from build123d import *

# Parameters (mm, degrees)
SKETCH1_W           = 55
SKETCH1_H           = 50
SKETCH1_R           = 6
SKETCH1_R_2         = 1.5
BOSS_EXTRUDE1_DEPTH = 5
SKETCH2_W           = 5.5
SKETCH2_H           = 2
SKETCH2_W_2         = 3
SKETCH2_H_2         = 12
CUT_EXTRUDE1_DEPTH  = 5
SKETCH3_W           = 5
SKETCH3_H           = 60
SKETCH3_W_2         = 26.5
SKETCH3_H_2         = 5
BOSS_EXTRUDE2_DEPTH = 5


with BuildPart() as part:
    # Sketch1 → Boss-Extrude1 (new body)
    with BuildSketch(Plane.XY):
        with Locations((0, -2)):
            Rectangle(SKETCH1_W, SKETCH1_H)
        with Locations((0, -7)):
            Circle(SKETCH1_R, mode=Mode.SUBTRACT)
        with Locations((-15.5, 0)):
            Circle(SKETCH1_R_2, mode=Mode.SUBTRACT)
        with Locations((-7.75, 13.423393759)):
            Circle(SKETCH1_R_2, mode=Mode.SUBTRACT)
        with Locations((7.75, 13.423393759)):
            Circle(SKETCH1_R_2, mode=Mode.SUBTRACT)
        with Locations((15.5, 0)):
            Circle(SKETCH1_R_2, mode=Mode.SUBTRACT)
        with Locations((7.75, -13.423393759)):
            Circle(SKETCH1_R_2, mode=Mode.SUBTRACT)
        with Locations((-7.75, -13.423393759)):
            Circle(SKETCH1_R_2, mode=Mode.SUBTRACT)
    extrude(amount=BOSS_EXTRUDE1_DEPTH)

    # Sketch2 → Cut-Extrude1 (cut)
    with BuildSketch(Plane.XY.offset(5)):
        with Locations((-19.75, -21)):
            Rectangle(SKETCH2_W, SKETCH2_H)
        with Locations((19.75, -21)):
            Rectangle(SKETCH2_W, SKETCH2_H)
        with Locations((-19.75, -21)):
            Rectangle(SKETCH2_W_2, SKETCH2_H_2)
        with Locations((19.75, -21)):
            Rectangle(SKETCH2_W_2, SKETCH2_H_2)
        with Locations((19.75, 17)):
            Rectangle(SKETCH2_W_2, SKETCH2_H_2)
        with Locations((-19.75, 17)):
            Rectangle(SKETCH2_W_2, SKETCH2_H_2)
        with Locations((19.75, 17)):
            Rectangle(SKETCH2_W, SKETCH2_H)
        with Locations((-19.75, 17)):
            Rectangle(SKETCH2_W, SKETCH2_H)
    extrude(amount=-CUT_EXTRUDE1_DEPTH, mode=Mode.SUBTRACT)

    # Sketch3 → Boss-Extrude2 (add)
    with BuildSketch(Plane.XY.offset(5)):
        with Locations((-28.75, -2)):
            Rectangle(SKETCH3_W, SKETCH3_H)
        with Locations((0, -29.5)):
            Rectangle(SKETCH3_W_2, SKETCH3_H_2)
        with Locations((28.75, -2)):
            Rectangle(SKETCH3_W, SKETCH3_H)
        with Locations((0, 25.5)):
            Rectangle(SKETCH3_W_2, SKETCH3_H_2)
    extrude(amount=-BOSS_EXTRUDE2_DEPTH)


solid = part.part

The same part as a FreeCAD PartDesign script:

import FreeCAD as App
import Part
import Sketcher

V = App.Vector


def add_polygon(sketch, points):
    """Adds a closed chain of lines whose ends are joined by coincident constraints."""
    first, n = sketch.GeometryCount, len(points)
    for a, b in zip(points, points[1:] + points[:1]):
        sketch.addGeometry(Part.LineSegment(App.Vector(*a, 0), App.Vector(*b, 0)), False)
    for i in range(n):
        sketch.addConstraint(Sketcher.Constraint("Coincident", first + i, 2, first + (i + 1) % n, 1))

doc = App.newDocument("Part")
params = doc.addObject("Spreadsheet::Sheet", "Params")
for row, (alias, value) in enumerate([
    ("sketch1_diameter", "3 mm"),
    ("sketch1_diameter2", "12 mm"),
    ("sketch1_width", "55 mm"),
    ("sketch1_height", "50 mm"),
    ("pad1_length", "5 mm"),
    ("sketch2_width", "3 mm"),
    ("sketch2_height", "2 mm"),
    ("sketch2_height2", "5 mm"),
    ("sketch2_width2", "1.25 mm"),
    ("pocket1_length", "5 mm"),
    ("sketch3_width", "5 mm"),
    ("sketch3_height", "60 mm"),
    ("sketch3_width2", "26.5 mm"),
    ("pad2_length", "5 mm"),
], start=1):
    params.set(f"A{row}", alias)
    params.set(f"B{row}", "=" + value)
    params.setAlias(f"B{row}", alias)

body = doc.addObject("PartDesign::Body", "Body")

# Sketch on XY plane
sketch1 = doc.addObject("Sketcher::SketchObject", "Sketch")
body.addObject(sketch1)
sketch1.AttachmentSupport = (doc.XY_Plane, [""])
sketch1.MapMode = "FlatFace"
add_polygon(sketch1, [(-27.5, 23), (-27.5, -27), (27.5, -27), (27.5, 23)])  # lines 0-3
sketch1.addGeometry(Part.Circle(V(-7.8, -13.4, 0), V(0, 0, 1), 1.5), False)  # 4
sketch1.addGeometry(Part.Circle(V(7.8, -13.4, 0), V(0, 0, 1), 1.5), False)  # 5
sketch1.addGeometry(Part.Circle(V(0, -7, 0), V(0, 0, 1), 6), False)  # 6
sketch1.addGeometry(Part.Circle(V(-15.5, 0, 0), V(0, 0, 1), 1.5), False)  # 7
sketch1.addGeometry(Part.Circle(V(-7.8, 13.4, 0), V(0, 0, 1), 1.5), False)  # 8
sketch1.addGeometry(Part.Circle(V(15.5, 0, 0), V(0, 0, 1), 1.5), False)  # 9
sketch1.addGeometry(Part.Circle(V(7.8, 13.4, 0), V(0, 0, 1), 1.5), False)  # 10
sketch1.addConstraint(Sketcher.Constraint("Vertical", 0))
sketch1.addConstraint(Sketcher.Constraint("Horizontal", 1))
sketch1.addConstraint(Sketcher.Constraint("Vertical", 2))
sketch1.addConstraint(Sketcher.Constraint("Horizontal", 3))
sketch1.addConstraint(Sketcher.Constraint("Equal", 4, 5))
sketch1.addConstraint(Sketcher.Constraint("Equal", 5, 7))
sketch1.addConstraint(Sketcher.Constraint("Equal", 7, 8))
sketch1.addConstraint(Sketcher.Constraint("Equal", 8, 9))
sketch1.addConstraint(Sketcher.Constraint("Equal", 9, 10))
sketch1.addConstraint(Sketcher.Constraint("Symmetric", 5, 3, 8, 3, -1, 1))
sketch1.addConstraint(Sketcher.Constraint("Symmetric", 7, 3, 9, 3, -1, 1))
sketch1.addConstraint(Sketcher.Constraint("Symmetric", 4, 3, 10, 3, -1, 1))
sketch1.addConstraint(Sketcher.Constraint("Symmetric", 4, 3, 5, 3, -2))
sketch1.addConstraint(Sketcher.Constraint("PointOnObject", 6, 3, -2))
sketch1.addConstraint(Sketcher.Constraint("PointOnObject", 7, 3, -1))
sketch1.addConstraint(Sketcher.Constraint("Diameter", 4, 3.0))
sketch1.addConstraint(Sketcher.Constraint("Diameter", 6, 12.0))
sketch1.addConstraint(Sketcher.Constraint("DistanceX", 1, 1, 1, 2, 55.0))
sketch1.addConstraint(Sketcher.Constraint("DistanceY", 0, 2, 0, 1, 50.0))
sketch1.addConstraint(Sketcher.Constraint("DistanceY", 6, 3, -1, 1, 7.0))
sketch1.addConstraint(Sketcher.Constraint("DistanceY", 0, 2, -1, 1, 27.0))
sketch1.addConstraint(Sketcher.Constraint("DistanceX", 7, 3, 9, 3, 31.0))
sketch1.addConstraint(Sketcher.Constraint("DistanceX", 0, 2, 7, 3, 12.0))
sketch1.addConstraint(Sketcher.Constraint("DistanceX", 4, 3, 5, 3, 15.5))
sketch1.addConstraint(Sketcher.Constraint("DistanceY", 4, 3, -1, 1, 13.423394))
sketch1.setExpression("Constraints[19]", "Params.sketch1_diameter")
sketch1.setExpression("Constraints[20]", "Params.sketch1_diameter2")
sketch1.setExpression("Constraints[21]", "Params.sketch1_width")
sketch1.setExpression("Constraints[22]", "Params.sketch1_height")
pad1 = doc.addObject("PartDesign::Pad", "Pad")
body.addObject(pad1)
pad1.Profile = sketch1
pad1.setExpression("Length", "Params.pad1_length")

# Sketch on XY plane
sketch2 = doc.addObject("Sketcher::SketchObject", "Sketch001")
body.addObject(sketch2)
sketch2.AttachmentSupport = (doc.XY_Plane, [""])
sketch2.MapMode = "FlatFace"
sketch2.AttachmentOffset = App.Placement(V(0, 0, 5), App.Rotation())
add_polygon(sketch2, [(-22.5, -20), (-22.5, -22), (-21.2, -22), (-21.2, -27), (-18.2, -27), (-18.2, -22), (-17, -22), (-17, -20), (-18.2, -20), (-18.2, -15), (-21.2, -15), (-21.2, -20)])  # lines 0-11
add_polygon(sketch2, [(17, -20), (17, -22), (18.2, -22), (18.2, -27), (21.2, -27), (21.2, -22), (22.5, -22), (22.5, -20), (21.2, -20), (21.2, -15), (18.2, -15), (18.2, -20)])  # lines 12-23
add_polygon(sketch2, [(18.2, 16), (18.2, 11), (21.2, 11), (21.2, 16), (22.5, 16), (22.5, 18), (21.2, 18), (21.2, 23), (18.2, 23), (18.2, 18), (17, 18), (17, 16)])  # lines 24-35
add_polygon(sketch2, [(-21.2, 16), (-21.2, 11), (-18.2, 11), (-18.2, 16), (-17, 16), (-17, 18), (-18.2, 18), (-18.2, 23), (-21.2, 23), (-21.2, 18), (-22.5, 18), (-22.5, 16)])  # lines 36-47
sketch2.addConstraint(Sketcher.Constraint("Vertical", 0))
sketch2.addConstraint(Sketcher.Constraint("Horizontal", 1))
sketch2.addConstraint(Sketcher.Constraint("Vertical", 2))
sketch2.addConstraint(Sketcher.Constraint("Horizontal", 3))
sketch2.addConstraint(Sketcher.Constraint("Vertical", 4))
sketch2.addConstraint(Sketcher.Constraint("Horizontal", 5))
sketch2.addConstraint(Sketcher.Constraint("Vertical", 6))
sketch2.addConstraint(Sketcher.Constraint("Horizontal", 7))
sketch2.addConstraint(Sketcher.Constraint("Vertical", 8))
sketch2.addConstraint(Sketcher.Constraint("Horizontal", 9))
sketch2.addConstraint(Sketcher.Constraint("Vertical", 10))
sketch2.addConstraint(Sketcher.Constraint("Horizontal", 11))
sketch2.addConstraint(Sketcher.Constraint("Vertical", 12))
sketch2.addConstraint(Sketcher.Constraint("Horizontal", 13))
sketch2.addConstraint(Sketcher.Constraint("Vertical", 14))
sketch2.addConstraint(Sketcher.Constraint("Horizontal", 15))
sketch2.addConstraint(Sketcher.Constraint("Vertical", 16))
sketch2.addConstraint(Sketcher.Constraint("Horizontal", 17))
sketch2.addConstraint(Sketcher.Constraint("Vertical", 18))
sketch2.addConstraint(Sketcher.Constraint("Horizontal", 19))
sketch2.addConstraint(Sketcher.Constraint("Vertical", 20))
sketch2.addConstraint(Sketcher.Constraint("Horizontal", 21))
sketch2.addConstraint(Sketcher.Constraint("Vertical", 22))
sketch2.addConstraint(Sketcher.Constraint("Horizontal", 23))
sketch2.addConstraint(Sketcher.Constraint("Vertical", 24))
sketch2.addConstraint(Sketcher.Constraint("Horizontal", 25))
sketch2.addConstraint(Sketcher.Constraint("Vertical", 26))
sketch2.addConstraint(Sketcher.Constraint("Horizontal", 27))
sketch2.addConstraint(Sketcher.Constraint("Vertical", 28))
sketch2.addConstraint(Sketcher.Constraint("Horizontal", 29))
sketch2.addConstraint(Sketcher.Constraint("Vertical", 30))
sketch2.addConstraint(Sketcher.Constraint("Horizontal", 31))
sketch2.addConstraint(Sketcher.Constraint("Vertical", 32))
sketch2.addConstraint(Sketcher.Constraint("Horizontal", 33))
sketch2.addConstraint(Sketcher.Constraint("Vertical", 34))
sketch2.addConstraint(Sketcher.Constraint("Horizontal", 35))
sketch2.addConstraint(Sketcher.Constraint("Vertical", 36))
sketch2.addConstraint(Sketcher.Constraint("Horizontal", 37))
sketch2.addConstraint(Sketcher.Constraint("Vertical", 38))
sketch2.addConstraint(Sketcher.Constraint("Horizontal", 39))
sketch2.addConstraint(Sketcher.Constraint("Vertical", 40))
sketch2.addConstraint(Sketcher.Constraint("Horizontal", 41))
sketch2.addConstraint(Sketcher.Constraint("Vertical", 42))
sketch2.addConstraint(Sketcher.Constraint("Horizontal", 43))
sketch2.addConstraint(Sketcher.Constraint("Vertical", 44))
sketch2.addConstraint(Sketcher.Constraint("Horizontal", 45))
sketch2.addConstraint(Sketcher.Constraint("Vertical", 46))
sketch2.addConstraint(Sketcher.Constraint("Horizontal", 47))
sketch2.addConstraint(Sketcher.Constraint("Symmetric", 5, 2, 12, 2, -2))
sketch2.addConstraint(Sketcher.Constraint("Symmetric", 3, 2, 14, 2, -2))
sketch2.addConstraint(Sketcher.Constraint("Symmetric", 1, 2, 16, 2, -2))
sketch2.addConstraint(Sketcher.Constraint("Symmetric", 11, 2, 18, 2, -2))
sketch2.addConstraint(Sketcher.Constraint("Symmetric", 9, 2, 20, 2, -2))
sketch2.addConstraint(Sketcher.Constraint("Symmetric", 7, 2, 22, 2, -2))
sketch2.addConstraint(Sketcher.Constraint("Symmetric", 25, 2, 36, 2, -2))
sketch2.addConstraint(Sketcher.Constraint("Symmetric", 35, 2, 38, 2, -2))
sketch2.addConstraint(Sketcher.Constraint("Symmetric", 33, 2, 40, 2, -2))
sketch2.addConstraint(Sketcher.Constraint("Symmetric", 31, 2, 42, 2, -2))
sketch2.addConstraint(Sketcher.Constraint("Symmetric", 29, 2, 44, 2, -2))
sketch2.addConstraint(Sketcher.Constraint("Symmetric", 27, 2, 46, 2, -2))
sketch2.addConstraint(Sketcher.Constraint("Horizontal", 1, 2, 4, 2))
sketch2.addConstraint(Sketcher.Constraint("Horizontal", 7, 2, 10, 2))
sketch2.addConstraint(Sketcher.Constraint("Horizontal", 29, 2, 32, 2))
sketch2.addConstraint(Sketcher.Constraint("Horizontal", 27, 2, 34, 2))
sketch2.addConstraint(Sketcher.Constraint("Vertical", 4, 2, 7, 2))
sketch2.addConstraint(Sketcher.Constraint("Vertical", 2, 2, 9, 2))
sketch2.addConstraint(Sketcher.Constraint("Vertical", 22, 2, 24, 2))
sketch2.addConstraint(Sketcher.Constraint("Vertical", 20, 2, 25, 2))
sketch2.addConstraint(Sketcher.Constraint("Vertical", 18, 2, 27, 2))
sketch2.addConstraint(Sketcher.Constraint("Vertical", 26, 2, 29, 2))
sketch2.addConstraint(Sketcher.Constraint("Vertical", 24, 2, 31, 2))
sketch2.addConstraint(Sketcher.Constraint("Vertical", 23, 2, 33, 2))
sketch2.addConstraint(Sketcher.Constraint("Equal", 1, 5))
sketch2.addConstraint(Sketcher.Constraint("Equal", 4, 8))
sketch2.addConstraint(Sketcher.Constraint("Equal", 22, 24))
sketch2.addConstraint(Sketcher.Constraint("Equal", 18, 28))
sketch2.addConstraint(Sketcher.Constraint("Equal", 26, 30))
sketch2.addConstraint(Sketcher.Constraint("DistanceX", 3, 1, 3, 2, 3.0))
sketch2.addConstraint(Sketcher.Constraint("DistanceY", 0, 2, 0, 1, 2.0))
sketch2.addConstraint(Sketcher.Constraint("DistanceY", 2, 2, 2, 1, 5.0))
sketch2.addConstraint(Sketcher.Constraint("DistanceY", 0, 2, -1, 1, 22.0))
sketch2.addConstraint(Sketcher.Constraint("DistanceX", 5, 2, -1, 1, 17.0))
sketch2.addConstraint(Sketcher.Constraint("DistanceY", -1, 1, 24, 2, 11.0))
sketch2.addConstraint(Sketcher.Constraint("DistanceX", 1, 1, 1, 2, 1.25))
sketch2.setExpression("Constraints[125]", "Params.sketch2_width")
sketch2.setExpression("Constraints[126]", "Params.sketch2_height")
sketch2.setExpression("Constraints[127]", "Params.sketch2_height2")
sketch2.setExpression("Constraints[131]", "Params.sketch2_width2")
pocket1 = doc.addObject("PartDesign::Pocket", "Pocket")
body.addObject(pocket1)
pocket1.Profile = sketch2
pocket1.setExpression("Length", "Params.pocket1_length")

# Sketch on XY plane
sketch3 = doc.addObject("Sketcher::SketchObject", "Sketch002")
body.addObject(sketch3)
sketch3.AttachmentSupport = (doc.XY_Plane, [""])
sketch3.MapMode = "FlatFace"
sketch3.AttachmentOffset = App.Placement(V(0, 0, 5), App.Rotation())
add_polygon(sketch3, [(-31, 28), (-31, -32), (-26, -32), (-26, 28)])  # lines 0-3
add_polygon(sketch3, [(-13, -27), (-13, -32), (13, -32), (13, -27)])  # lines 4-7
add_polygon(sketch3, [(26, 28), (26, -32), (31, -32), (31, 28)])  # lines 8-11
add_polygon(sketch3, [(-13, 28), (-13, 23), (13, 23), (13, 28)])  # lines 12-15
sketch3.addConstraint(Sketcher.Constraint("Vertical", 0))
sketch3.addConstraint(Sketcher.Constraint("Horizontal", 1))
sketch3.addConstraint(Sketcher.Constraint("Vertical", 2))
sketch3.addConstraint(Sketcher.Constraint("Horizontal", 3))
sketch3.addConstraint(Sketcher.Constraint("Vertical", 4))
sketch3.addConstraint(Sketcher.Constraint("Horizontal", 5))
sketch3.addConstraint(Sketcher.Constraint("Vertical", 6))
sketch3.addConstraint(Sketcher.Constraint("Horizontal", 7))
sketch3.addConstraint(Sketcher.Constraint("Vertical", 8))
sketch3.addConstraint(Sketcher.Constraint("Horizontal", 9))
sketch3.addConstraint(Sketcher.Constraint("Vertical", 10))
sketch3.addConstraint(Sketcher.Constraint("Horizontal", 11))
sketch3.addConstraint(Sketcher.Constraint("Vertical", 12))
sketch3.addConstraint(Sketcher.Constraint("Horizontal", 13))
sketch3.addConstraint(Sketcher.Constraint("Vertical", 14))
sketch3.addConstraint(Sketcher.Constraint("Horizontal", 15))
sketch3.addConstraint(Sketcher.Constraint("Symmetric", 1, 2, 8, 2, -2))
sketch3.addConstraint(Sketcher.Constraint("Symmetric", 3, 2, 10, 2, -2))
sketch3.addConstraint(Sketcher.Constraint("Horizontal", 1, 2, 4, 2))
sketch3.addConstraint(Sketcher.Constraint("Horizontal", 11, 2, 14, 2))
sketch3.addConstraint(Sketcher.Constraint("Vertical", 7, 2, 12, 2))
sketch3.addConstraint(Sketcher.Constraint("Vertical", 6, 2, 13, 2))
sketch3.addConstraint(Sketcher.Constraint("Equal", 11, 4))
sketch3.addConstraint(Sketcher.Constraint("Equal", 6, 12))
sketch3.addConstraint(Sketcher.Constraint("DistanceX", 1, 1, 1, 2, 5.0))
sketch3.addConstraint(Sketcher.Constraint("DistanceY", 0, 2, 0, 1, 60.0))
sketch3.addConstraint(Sketcher.Constraint("DistanceX", 5, 1, 5, 2, 26.5))
sketch3.addConstraint(Sketcher.Constraint("DistanceY", 0, 2, -1, 1, 32.0))
sketch3.addConstraint(Sketcher.Constraint("DistanceX", 1, 2, 4, 2, 13.0))
sketch3.addConstraint(Sketcher.Constraint("DistanceX", 5, 2, 8, 2, 13.0))
sketch3.setExpression("Constraints[40]", "Params.sketch3_width")
sketch3.setExpression("Constraints[41]", "Params.sketch3_height")
sketch3.setExpression("Constraints[42]", "Params.sketch3_width2")
pad2 = doc.addObject("PartDesign::Pad", "Pad001")
body.addObject(pad2)
pad2.Profile = sketch3
pad2.setExpression("Length", "Params.pad2_length")
pad2.Reversed = True

doc.recompute()
